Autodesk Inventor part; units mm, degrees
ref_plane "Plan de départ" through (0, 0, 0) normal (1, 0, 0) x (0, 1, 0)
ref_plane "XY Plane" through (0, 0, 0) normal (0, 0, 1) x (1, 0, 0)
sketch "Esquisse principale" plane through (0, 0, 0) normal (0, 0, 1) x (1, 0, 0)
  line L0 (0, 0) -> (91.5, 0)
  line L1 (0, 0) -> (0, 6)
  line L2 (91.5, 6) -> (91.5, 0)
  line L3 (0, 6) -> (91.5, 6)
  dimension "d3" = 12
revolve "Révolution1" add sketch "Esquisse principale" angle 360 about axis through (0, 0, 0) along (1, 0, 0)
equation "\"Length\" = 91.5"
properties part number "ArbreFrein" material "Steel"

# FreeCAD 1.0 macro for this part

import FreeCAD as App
import Part
import Sketcher


def add_polygon(sketch, points):
    """Adds a closed chain of lines whose ends are joined by coincident constraints."""
    first, n = sketch.GeometryCount, len(points)
    for a, b in zip(points, points[1:] + points[:1]):
        sketch.addGeometry(Part.LineSegment(App.Vector(*a, 0), App.Vector(*b, 0)), False)
    for i in range(n):
        sketch.addConstraint(Sketcher.Constraint("Coincident", first + i, 2, first + (i + 1) % n, 1))

doc = App.newDocument("Part")
body = doc.addObject("PartDesign::Body", "Body")

sketch1 = body.newObject("Sketcher::SketchObject", "Sketch")
sketch1.AttachmentSupport = (doc.getObject("XY_Plane"), [""])
sketch1.MapMode = "FlatFace"
add_polygon(sketch1, [(0, 6), (0, 0), (92, 0), (92, 6)])
sketch1.addConstraint([
    Sketcher.Constraint("Vertical", 0),
    Sketcher.Constraint("Horizontal", 1),
    Sketcher.Constraint("Vertical", 2),
    Sketcher.Constraint("Horizontal", 3),
    Sketcher.Constraint("Coincident", 0, 2, -1, 1),
    Sketcher.Constraint("DistanceY", 0, 2, 0, 1, 6.0),
    Sketcher.Constraint("DistanceX", 1, 1, 1, 2, 91.5),
])
revolution = body.newObject("PartDesign::Revolution", "Revolution")
revolution.Profile = sketch1
revolution.ReferenceAxis = (sketch1, ["H_Axis"])
revolution.Angle = 360

doc.recompute()
